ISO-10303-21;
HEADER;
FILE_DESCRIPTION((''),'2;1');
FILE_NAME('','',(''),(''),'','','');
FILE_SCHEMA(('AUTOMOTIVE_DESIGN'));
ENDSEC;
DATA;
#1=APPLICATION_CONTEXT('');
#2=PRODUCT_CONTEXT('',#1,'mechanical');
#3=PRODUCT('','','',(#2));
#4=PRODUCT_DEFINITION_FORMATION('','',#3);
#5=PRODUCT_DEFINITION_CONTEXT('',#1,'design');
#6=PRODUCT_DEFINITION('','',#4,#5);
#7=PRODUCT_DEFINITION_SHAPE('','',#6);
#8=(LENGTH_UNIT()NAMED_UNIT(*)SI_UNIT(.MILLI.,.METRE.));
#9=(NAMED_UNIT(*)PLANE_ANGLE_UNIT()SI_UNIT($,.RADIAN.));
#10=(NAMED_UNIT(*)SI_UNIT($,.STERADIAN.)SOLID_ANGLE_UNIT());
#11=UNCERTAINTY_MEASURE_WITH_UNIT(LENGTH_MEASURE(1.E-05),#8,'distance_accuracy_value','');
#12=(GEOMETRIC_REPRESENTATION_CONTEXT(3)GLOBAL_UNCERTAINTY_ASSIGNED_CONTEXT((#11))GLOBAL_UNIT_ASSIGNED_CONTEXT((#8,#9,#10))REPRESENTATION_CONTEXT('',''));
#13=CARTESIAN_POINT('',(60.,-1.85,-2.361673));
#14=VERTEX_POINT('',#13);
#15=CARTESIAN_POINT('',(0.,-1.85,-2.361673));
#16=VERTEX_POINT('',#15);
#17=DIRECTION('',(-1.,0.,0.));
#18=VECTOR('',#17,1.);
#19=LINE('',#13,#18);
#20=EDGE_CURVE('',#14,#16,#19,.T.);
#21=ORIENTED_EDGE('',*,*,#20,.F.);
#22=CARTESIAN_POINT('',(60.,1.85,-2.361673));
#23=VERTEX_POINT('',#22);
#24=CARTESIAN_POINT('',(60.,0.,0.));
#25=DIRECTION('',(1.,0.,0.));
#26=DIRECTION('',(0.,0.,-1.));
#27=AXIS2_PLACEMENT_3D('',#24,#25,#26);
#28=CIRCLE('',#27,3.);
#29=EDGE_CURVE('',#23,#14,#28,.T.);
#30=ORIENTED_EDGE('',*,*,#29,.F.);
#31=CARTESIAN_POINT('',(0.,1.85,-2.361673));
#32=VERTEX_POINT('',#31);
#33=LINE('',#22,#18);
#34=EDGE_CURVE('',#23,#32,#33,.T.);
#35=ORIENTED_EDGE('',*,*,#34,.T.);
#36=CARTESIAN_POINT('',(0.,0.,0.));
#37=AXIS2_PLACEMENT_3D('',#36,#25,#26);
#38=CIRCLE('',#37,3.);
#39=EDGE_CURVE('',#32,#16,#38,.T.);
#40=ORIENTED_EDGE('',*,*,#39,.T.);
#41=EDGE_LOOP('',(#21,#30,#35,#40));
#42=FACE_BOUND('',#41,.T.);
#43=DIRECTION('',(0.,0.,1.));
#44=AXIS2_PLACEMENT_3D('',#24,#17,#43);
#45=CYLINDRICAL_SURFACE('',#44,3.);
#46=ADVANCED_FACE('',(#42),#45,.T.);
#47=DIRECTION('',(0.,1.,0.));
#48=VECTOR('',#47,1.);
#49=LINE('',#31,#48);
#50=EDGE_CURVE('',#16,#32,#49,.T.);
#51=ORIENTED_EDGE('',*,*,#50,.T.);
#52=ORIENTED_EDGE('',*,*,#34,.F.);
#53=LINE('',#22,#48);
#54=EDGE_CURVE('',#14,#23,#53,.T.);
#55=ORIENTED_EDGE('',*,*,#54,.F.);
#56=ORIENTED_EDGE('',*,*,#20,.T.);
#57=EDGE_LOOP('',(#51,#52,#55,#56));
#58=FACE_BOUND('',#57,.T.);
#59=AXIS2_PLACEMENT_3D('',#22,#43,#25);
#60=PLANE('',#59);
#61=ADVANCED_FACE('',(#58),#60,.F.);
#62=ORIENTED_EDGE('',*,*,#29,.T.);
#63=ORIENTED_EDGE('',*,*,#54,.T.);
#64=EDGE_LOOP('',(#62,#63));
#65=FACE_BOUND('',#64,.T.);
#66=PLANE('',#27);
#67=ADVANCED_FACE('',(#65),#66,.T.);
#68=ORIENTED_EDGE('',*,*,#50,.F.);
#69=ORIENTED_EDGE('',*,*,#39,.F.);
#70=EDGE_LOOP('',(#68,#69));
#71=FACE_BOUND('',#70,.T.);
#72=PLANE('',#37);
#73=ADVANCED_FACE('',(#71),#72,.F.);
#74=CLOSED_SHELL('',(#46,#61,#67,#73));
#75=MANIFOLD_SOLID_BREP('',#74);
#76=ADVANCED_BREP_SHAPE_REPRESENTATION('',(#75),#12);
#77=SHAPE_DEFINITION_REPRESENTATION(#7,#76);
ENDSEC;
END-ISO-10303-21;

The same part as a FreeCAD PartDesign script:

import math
import FreeCAD as App
import Part
import Sketcher

doc = App.newDocument("Part")
body = doc.addObject("PartDesign::Body", "Body")

sketch1 = body.newObject("Sketcher::SketchObject", "Sketch")
sketch1.AttachmentSupport = (doc.getObject("YZ_Plane"), [""])
sketch1.MapMode = "FlatFace"
sketch1.addGeometry([
    Part.LineSegment(App.Vector(-1.85, -2.361673, 0), App.Vector(1.85, -2.361673, 0)),
    Part.ArcOfCircle(Part.Circle(App.Vector(0, 0, 0), App.Vector(0, 0, 1), 3), math.radians(-51.926877), math.radians(231.926877)),
], False)
sketch1.addConstraint([
    Sketcher.Constraint("Coincident", 0, 1, 1, 2),
    Sketcher.Constraint("Coincident", 1, 1, 0, 2),
    Sketcher.Constraint("Horizontal", 0),
    Sketcher.Constraint("Coincident", 1, 3, -1, 1),
    Sketcher.Constraint("Radius", 1, 3.0),
    Sketcher.Constraint("DistanceX", 0, 1, 0, 2, 3.7),
])
pad1 = body.newObject("PartDesign::Pad", "Pad")
pad1.Profile = sketch1
pad1.Length = 60

doc.recompute()
